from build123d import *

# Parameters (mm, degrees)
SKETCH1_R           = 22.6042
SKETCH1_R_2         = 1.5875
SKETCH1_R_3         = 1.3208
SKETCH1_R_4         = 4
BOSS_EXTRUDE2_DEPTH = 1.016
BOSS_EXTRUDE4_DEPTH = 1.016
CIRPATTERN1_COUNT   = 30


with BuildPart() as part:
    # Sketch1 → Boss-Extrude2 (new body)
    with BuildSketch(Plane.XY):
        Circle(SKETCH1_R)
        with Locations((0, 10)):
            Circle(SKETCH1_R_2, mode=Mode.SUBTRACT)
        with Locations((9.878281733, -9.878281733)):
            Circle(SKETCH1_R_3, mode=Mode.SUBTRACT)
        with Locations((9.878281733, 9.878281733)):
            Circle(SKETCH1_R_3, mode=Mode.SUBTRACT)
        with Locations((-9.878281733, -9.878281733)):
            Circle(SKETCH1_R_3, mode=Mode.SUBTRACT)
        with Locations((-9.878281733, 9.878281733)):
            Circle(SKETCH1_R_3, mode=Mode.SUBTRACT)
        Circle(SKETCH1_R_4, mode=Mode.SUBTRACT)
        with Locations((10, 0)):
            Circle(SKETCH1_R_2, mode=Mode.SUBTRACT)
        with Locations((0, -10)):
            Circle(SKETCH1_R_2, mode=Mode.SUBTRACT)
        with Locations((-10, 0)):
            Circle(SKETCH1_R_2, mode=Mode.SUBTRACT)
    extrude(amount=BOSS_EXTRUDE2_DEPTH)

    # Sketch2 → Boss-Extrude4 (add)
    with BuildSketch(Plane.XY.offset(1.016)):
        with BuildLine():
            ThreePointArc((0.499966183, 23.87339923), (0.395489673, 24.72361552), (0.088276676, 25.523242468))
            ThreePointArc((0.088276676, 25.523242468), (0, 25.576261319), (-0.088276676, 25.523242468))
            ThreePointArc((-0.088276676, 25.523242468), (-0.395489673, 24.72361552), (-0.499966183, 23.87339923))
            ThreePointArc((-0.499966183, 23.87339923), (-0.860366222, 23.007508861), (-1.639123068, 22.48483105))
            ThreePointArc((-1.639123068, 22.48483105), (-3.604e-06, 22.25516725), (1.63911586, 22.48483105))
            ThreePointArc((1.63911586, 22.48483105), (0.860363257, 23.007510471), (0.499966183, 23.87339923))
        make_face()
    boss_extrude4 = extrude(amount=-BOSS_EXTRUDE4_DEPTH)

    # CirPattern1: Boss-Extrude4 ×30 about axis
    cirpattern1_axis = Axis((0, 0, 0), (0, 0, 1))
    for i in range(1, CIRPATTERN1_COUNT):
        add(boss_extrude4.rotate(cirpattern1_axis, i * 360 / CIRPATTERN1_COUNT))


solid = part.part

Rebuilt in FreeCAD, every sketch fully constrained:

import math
import FreeCAD as App
import Part
import Sketcher

V = App.Vector
Q = App.Units.Quantity

doc = App.newDocument("Part")
params = doc.addObject("Spreadsheet::Sheet", "Params")
for row, (alias, value) in enumerate([
    ("sketch1_diameter", "0.104 in"),
    ("sketch1_diameter2", "0.125 in"),
    ("pad1_length", "0.04 in"),
    ("sketch2_radius", "0.064 in"),
    ("pad2_length", "0.04 in"),
], start=1):
    params.set(f"A{row}", alias)
    params.set(f"B{row}", "=" + value)
    params.setAlias(f"B{row}", alias)

body = doc.addObject("PartDesign::Body", "Body")

# Sketch on XY plane
sketch1 = body.newObject("Sketcher::SketchObject", "Sketch")
sketch1.AttachmentSupport = (doc.getObject("XY_Plane"), [""])
sketch1.MapMode = "FlatFace"
sketch1.addGeometry(Part.Circle(V(0, 0, 0), V(0, 0, 1), 22.6), False)
sketch1.addGeometry(Part.Circle(V(-9.9, -9.9, 0), V(0, 0, 1), 1.3), False)
sketch1.addGeometry(Part.Circle(V(0, -10, 0), V(0, 0, 1), 1.6), False)
sketch1.addGeometry(Part.Circle(V(-10, 0, 0), V(0, 0, 1), 1.6), False)
sketch1.addGeometry(Part.Circle(V(0, 0, 0), V(0, 0, 1), 4), False)
sketch1.addGeometry(Part.Circle(V(9.9, -9.9, 0), V(0, 0, 1), 1.3), False)
sketch1.addGeometry(Part.Circle(V(10, 0, 0), V(0, 0, 1), 1.6), False)
sketch1.addGeometry(Part.Circle(V(-9.9, 9.9, 0), V(0, 0, 1), 1.3), False)
sketch1.addGeometry(Part.Circle(V(0, 10, 0), V(0, 0, 1), 1.6), False)
sketch1.addGeometry(Part.Circle(V(9.9, 9.9, 0), V(0, 0, 1), 1.3), False)
sketch1.addConstraint(Sketcher.Constraint("Coincident", 0, 3, -1, 1))
sketch1.addConstraint(Sketcher.Constraint("Coincident", 4, 3, -1, 1))
sketch1.addConstraint(Sketcher.Constraint("Equal", 2, 3))
sketch1.addConstraint(Sketcher.Constraint("Equal", 1, 5))
sketch1.addConstraint(Sketcher.Constraint("Equal", 3, 6))
sketch1.addConstraint(Sketcher.Constraint("Equal", 5, 7))
sketch1.addConstraint(Sketcher.Constraint("Equal", 6, 8))
sketch1.addConstraint(Sketcher.Constraint("Equal", 7, 9))
sketch1.addConstraint(Sketcher.Constraint("Symmetric", 3, 3, 6, 3, -1, 1))
sketch1.addConstraint(Sketcher.Constraint("Symmetric", 5, 3, 7, 3, -1, 1))
sketch1.addConstraint(Sketcher.Constraint("Symmetric", 2, 3, 8, 3, -1, 1))
sketch1.addConstraint(Sketcher.Constraint("Symmetric", 1, 3, 9, 3, -1, 1))
sketch1.addConstraint(Sketcher.Constraint("Symmetric", 1, 3, 5, 3, -2))
sketch1.addConstraint(Sketcher.Constraint("PointOnObject", 2, 3, -2))
sketch1.addConstraint(Sketcher.Constraint("PointOnObject", 3, 3, -1))
sketch1.addConstraint(Sketcher.Constraint("Diameter", 1, Q("0.104 in")))
sketch1.addConstraint(Sketcher.Constraint("Diameter", 2, Q("0.125 in")))
sketch1.addConstraint(Sketcher.Constraint("Diameter", 0, 45.2084))
sketch1.addConstraint(Sketcher.Constraint("Diameter", 4, 8.0))
sketch1.addConstraint(Sketcher.Constraint("DistanceY", 2, 3, -1, 1, 10.0))
sketch1.addConstraint(Sketcher.Constraint("DistanceX", 3, 3, -1, 1, 10.0))
sketch1.addConstraint(Sketcher.Constraint("DistanceX", 1, 3, -1, 1, 9.878282))
sketch1.addConstraint(Sketcher.Constraint("DistanceY", 1, 3, -1, 1, 9.878282))
sketch1.setExpression("Constraints[15]", "Params.sketch1_diameter")
sketch1.setExpression("Constraints[16]", "Params.sketch1_diameter2")
pad1 = body.newObject("PartDesign::Pad", "Pad")
pad1.Profile = sketch1
pad1.setExpression("Length", "Params.pad1_length")

# Sketch on XY plane
sketch2 = body.newObject("Sketcher::SketchObject", "Sketch001")
sketch2.AttachmentSupport = (doc.getObject("XY_Plane"), [""])
sketch2.MapMode = "FlatFace"
sketch2.AttachmentOffset = App.Placement(V(0, 0, 0.04 * 25.4), App.Rotation())
sketch2.addGeometry(Part.ArcOfCircle(Part.Circle(V(-3.01, 23.87, 0), V(0, 0, 1), 3.51), math.radians(0), math.radians(28)), False)
sketch2.addGeometry(Part.ArcOfCircle(Part.Circle(V(0, 25.48, 0), V(0, 0, 1), 0.1), math.radians(28), math.radians(152)), False)
sketch2.addGeometry(Part.ArcOfCircle(Part.Circle(V(3.01, 23.87, 0), V(0, 0, 1), 3.51), math.radians(152), math.radians(180)), False)
sketch2.addGeometry(Part.ArcOfCircle(Part.Circle(V(-2.12, 24.04, 0), V(0, 0, 1), 1.63), math.radians(-73), math.radians(-6)), False)
sketch2.addGeometry(Part.ArcOfCircle(Part.Circle(V(0, 28.22, 0), V(0, 0, 1), 5.96), math.radians(-106), math.radians(-74)), False)
sketch2.addGeometry(Part.ArcOfCircle(Part.Circle(V(2.12, 24.04, 0), V(0, 0, 1), 1.63), math.radians(-174), math.radians(-107)), False)
sketch2.addConstraint(Sketcher.Constraint("Tangent", 0, 2, 1, 1))
sketch2.addConstraint(Sketcher.Constraint("Tangent", 1, 2, 2, 1))
sketch2.addConstraint(Sketcher.Constraint("Coincident", 2, 2, 3, 2))
sketch2.addConstraint(Sketcher.Constraint("Coincident", 3, 1, 4, 1))
sketch2.addConstraint(Sketcher.Constraint("Coincident", 4, 2, 5, 2))
sketch2.addConstraint(Sketcher.Constraint("Coincident", 5, 1, 0, 1))
sketch2.addConstraint(Sketcher.Constraint("Equal", 0, 2))
sketch2.addConstraint(Sketcher.Constraint("Equal", 3, 5))
sketch2.addConstraint(Sketcher.Constraint("Symmetric", 0, 3, 2, 3, -2))
sketch2.addConstraint(Sketcher.Constraint("Symmetric", 3, 3, 5, 3, -2))
sketch2.addConstraint(Sketcher.Constraint("Horizontal", 0, 3, 2, 2))
sketch2.addConstraint(Sketcher.Constraint("Horizontal", 3, 1, 4, 2))
sketch2.addConstraint(Sketcher.Constraint("Radius", 3, Q("0.064 in")))
sketch2.addConstraint(Sketcher.Constraint("Radius", 1, 0.1))
sketch2.addConstraint(Sketcher.Constraint("Radius", 4, 5.964062))
sketch2.addConstraint(Sketcher.Constraint("DistanceY", -1, 1, 3, 3, Q("0.9463998 in")))
sketch2.addConstraint(Sketcher.Constraint("Radius", 0, 3.511713))
sketch2.addConstraint(Sketcher.Constraint("DistanceY", -1, 1, 0, 3, 23.873399))
sketch2.addConstraint(Sketcher.Constraint("DistanceY", -1, 1, 1, 3, 25.476261))
sketch2.addConstraint(Sketcher.Constraint("DistanceY", -1, 1, 4, 3, 28.219229))
sketch2.setExpression("Constraints[12]", "Params.sketch2_radius")
pad2 = body.newObject("PartDesign::Pad", "Pad001")
pad2.Profile = sketch2
pad2.setExpression("Length", "Params.pad2_length")
pad2.Reversed = True
doc.recompute()

polarpattern = body.newObject("PartDesign::PolarPattern", "PolarPattern")
polarpattern.Originals = [pad2]
polarpattern.Axis = (doc.getObject("Z_Axis"), [""])
polarpattern.Angle = 360
polarpattern.Occurrences = 30
body.Tip = polarpattern

doc.recompute()
